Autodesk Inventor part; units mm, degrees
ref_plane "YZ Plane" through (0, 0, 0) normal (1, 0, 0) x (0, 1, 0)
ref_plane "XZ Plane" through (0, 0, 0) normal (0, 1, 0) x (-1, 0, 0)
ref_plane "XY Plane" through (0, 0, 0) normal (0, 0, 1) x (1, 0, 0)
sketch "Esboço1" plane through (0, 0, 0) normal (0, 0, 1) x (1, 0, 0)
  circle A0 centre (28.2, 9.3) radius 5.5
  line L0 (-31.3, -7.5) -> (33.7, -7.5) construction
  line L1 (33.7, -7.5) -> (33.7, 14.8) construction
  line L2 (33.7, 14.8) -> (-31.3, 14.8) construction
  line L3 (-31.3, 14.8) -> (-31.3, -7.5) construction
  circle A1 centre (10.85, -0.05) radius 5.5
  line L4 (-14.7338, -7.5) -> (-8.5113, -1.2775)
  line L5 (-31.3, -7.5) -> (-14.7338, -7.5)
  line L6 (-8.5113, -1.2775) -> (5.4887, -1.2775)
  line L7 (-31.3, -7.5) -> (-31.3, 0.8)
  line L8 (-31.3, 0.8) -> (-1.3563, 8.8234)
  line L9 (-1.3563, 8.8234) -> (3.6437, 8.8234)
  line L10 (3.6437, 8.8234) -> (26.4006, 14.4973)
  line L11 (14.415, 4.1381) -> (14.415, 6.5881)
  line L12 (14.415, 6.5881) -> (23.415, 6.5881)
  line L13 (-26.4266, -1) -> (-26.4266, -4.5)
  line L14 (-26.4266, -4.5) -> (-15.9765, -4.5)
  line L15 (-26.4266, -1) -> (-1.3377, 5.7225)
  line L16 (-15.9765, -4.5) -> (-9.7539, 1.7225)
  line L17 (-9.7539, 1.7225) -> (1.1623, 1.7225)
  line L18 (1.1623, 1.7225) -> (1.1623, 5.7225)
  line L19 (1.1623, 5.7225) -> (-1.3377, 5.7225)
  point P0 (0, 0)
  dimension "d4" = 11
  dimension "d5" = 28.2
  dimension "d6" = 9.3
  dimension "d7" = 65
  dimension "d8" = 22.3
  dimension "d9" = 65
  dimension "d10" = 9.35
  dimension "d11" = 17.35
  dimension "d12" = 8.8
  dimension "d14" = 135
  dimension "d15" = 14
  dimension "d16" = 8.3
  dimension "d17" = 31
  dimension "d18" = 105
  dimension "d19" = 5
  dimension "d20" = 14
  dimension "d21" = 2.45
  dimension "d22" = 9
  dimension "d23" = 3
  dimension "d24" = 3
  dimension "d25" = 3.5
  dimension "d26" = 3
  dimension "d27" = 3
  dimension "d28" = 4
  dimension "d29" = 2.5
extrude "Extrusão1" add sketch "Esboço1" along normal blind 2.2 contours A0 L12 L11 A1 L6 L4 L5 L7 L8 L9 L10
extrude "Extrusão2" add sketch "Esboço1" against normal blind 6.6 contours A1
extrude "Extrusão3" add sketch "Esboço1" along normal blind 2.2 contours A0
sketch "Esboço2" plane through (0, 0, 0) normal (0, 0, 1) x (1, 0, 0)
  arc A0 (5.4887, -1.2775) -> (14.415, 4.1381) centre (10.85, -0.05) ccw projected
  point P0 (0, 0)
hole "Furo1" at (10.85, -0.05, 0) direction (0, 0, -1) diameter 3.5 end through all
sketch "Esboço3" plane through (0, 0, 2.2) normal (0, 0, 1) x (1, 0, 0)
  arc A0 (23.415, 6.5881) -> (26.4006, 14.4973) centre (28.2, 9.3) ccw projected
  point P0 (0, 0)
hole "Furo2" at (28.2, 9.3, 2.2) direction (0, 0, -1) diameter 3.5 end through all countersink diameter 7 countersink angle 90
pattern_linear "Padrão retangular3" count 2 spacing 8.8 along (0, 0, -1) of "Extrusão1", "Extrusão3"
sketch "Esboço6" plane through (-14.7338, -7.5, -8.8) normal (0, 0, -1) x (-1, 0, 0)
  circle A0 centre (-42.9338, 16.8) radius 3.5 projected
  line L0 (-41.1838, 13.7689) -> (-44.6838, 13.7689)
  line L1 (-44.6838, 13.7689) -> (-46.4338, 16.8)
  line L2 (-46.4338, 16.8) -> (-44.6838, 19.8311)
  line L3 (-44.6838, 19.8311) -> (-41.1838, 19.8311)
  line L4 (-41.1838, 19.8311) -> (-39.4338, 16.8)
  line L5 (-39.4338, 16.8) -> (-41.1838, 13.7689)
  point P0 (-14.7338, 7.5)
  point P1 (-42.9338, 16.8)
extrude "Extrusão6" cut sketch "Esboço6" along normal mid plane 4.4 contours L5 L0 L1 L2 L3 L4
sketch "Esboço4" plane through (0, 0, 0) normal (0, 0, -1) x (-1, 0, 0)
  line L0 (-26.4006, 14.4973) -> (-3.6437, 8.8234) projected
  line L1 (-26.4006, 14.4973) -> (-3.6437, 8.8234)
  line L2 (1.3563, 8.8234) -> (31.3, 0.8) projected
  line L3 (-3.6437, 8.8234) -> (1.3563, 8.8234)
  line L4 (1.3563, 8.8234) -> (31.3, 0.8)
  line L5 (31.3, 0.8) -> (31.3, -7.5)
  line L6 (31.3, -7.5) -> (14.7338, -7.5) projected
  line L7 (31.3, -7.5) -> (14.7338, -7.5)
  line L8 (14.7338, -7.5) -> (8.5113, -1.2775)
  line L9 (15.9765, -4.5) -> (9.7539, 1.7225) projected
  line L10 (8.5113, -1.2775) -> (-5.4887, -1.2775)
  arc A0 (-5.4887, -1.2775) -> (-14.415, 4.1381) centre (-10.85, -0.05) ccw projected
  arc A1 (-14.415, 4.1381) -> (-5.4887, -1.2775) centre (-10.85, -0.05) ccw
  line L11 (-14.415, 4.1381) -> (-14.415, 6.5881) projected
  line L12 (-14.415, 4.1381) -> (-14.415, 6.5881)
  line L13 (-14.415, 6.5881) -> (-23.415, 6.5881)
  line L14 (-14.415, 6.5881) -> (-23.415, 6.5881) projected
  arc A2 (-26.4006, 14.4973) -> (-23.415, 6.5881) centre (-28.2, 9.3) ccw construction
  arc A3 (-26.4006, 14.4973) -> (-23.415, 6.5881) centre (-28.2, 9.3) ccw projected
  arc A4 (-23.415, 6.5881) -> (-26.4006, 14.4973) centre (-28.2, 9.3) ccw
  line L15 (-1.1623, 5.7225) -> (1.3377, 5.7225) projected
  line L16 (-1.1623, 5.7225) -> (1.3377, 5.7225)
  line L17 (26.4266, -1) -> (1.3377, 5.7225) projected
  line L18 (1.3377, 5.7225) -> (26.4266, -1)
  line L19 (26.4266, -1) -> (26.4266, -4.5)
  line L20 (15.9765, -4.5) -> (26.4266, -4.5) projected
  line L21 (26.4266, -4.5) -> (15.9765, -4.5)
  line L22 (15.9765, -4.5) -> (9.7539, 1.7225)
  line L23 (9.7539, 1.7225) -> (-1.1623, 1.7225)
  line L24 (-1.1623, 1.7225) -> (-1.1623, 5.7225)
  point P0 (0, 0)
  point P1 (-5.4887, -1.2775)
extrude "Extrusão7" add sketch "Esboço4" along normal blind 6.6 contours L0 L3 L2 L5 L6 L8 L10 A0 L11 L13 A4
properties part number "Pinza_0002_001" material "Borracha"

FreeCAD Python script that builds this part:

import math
import FreeCAD as App
import Part
import Sketcher
from FreeCAD import Vector
Q = App.Units.Quantity


def add_polygon(sketch, points):
    """Adds a closed chain of lines whose ends are joined by coincident constraints."""
    first, n = sketch.GeometryCount, len(points)
    for a, b in zip(points, points[1:] + points[:1]):
        sketch.addGeometry(Part.LineSegment(App.Vector(*a, 0), App.Vector(*b, 0)), False)
    for i in range(n):
        sketch.addConstraint(Sketcher.Constraint("Coincident", first + i, 2, first + (i + 1) % n, 1))

doc = App.newDocument("Part")
body = doc.addObject("PartDesign::Body", "Body")
body.AllowCompound = True

# Sketch on XY plane
sketch1 = doc.addObject("Sketcher::SketchObject", "Sketch")
body.addObject(sketch1)
sketch1.AttachmentSupport = (doc.XY_Plane, [""])
sketch1.MapMode = "FlatFace"
sketch1.addGeometry(Part.ArcOfCircle(Part.Circle(Vector(28.2, 9.3, 0), Vector(0, 0, 1), 5.5), math.radians(109), math.radians(210)), False)  # 0
sketch1.addGeometry(Part.LineSegment(Vector(26.4, 14.5, 0), Vector(3.6, 8.8, 0)), False)  # 1
sketch1.addGeometry(Part.LineSegment(Vector(3.6, 8.8, 0), Vector(-1.4, 8.8, 0)), False)  # 2
sketch1.addGeometry(Part.LineSegment(Vector(-1.4, 8.8, 0), Vector(-31.3, 0.8, 0)), False)  # 3
sketch1.addGeometry(Part.LineSegment(Vector(-31.3, 0.8, 0), Vector(-31.3, -7.5, 0)), False)  # 4
sketch1.addGeometry(Part.LineSegment(Vector(-31.3, -7.5, 0), Vector(-14.7, -7.5, 0)), False)  # 5
sketch1.addGeometry(Part.LineSegment(Vector(-14.7, -7.5, 0), Vector(-8.5, -1.3, 0)), False)  # 6
sketch1.addGeometry(Part.LineSegment(Vector(-8.5, -1.3, 0), Vector(5.5, -1.3, 0)), False)  # 7
sketch1.addGeometry(Part.ArcOfCircle(Part.Circle(Vector(10.8, -0.1, 0), Vector(0, 0, 1), 5.5), math.radians(50), math.radians(193)), False)  # 8
sketch1.addGeometry(Part.LineSegment(Vector(14.4, 4.1, 0), Vector(14.4, 6.6, 0)), False)  # 9
sketch1.addGeometry(Part.LineSegment(Vector(14.4, 6.6, 0), Vector(23.4, 6.6, 0)), False)  # 10
add_polygon(sketch1, [(-26.4, -4.5), (-26.4, -1), (-1.3, 5.7), (1.2, 5.7), (1.2, 1.7), (-9.8, 1.7), (-16, -4.5)])  # lines 11-17
sketch1.addConstraint([
    Sketcher.Constraint("Coincident", 0, 1, 1, 1),
    Sketcher.Constraint("Coincident", 1, 2, 2, 1),
    Sketcher.Constraint("Coincident", 2, 2, 3, 1),
    Sketcher.Constraint("Coincident", 3, 2, 4, 1),
    Sketcher.Constraint("Coincident", 4, 2, 5, 1),
    Sketcher.Constraint("Coincident", 5, 2, 6, 1),
    Sketcher.Constraint("Coincident", 6, 2, 7, 1),
    Sketcher.Constraint("Coincident", 7, 2, 8, 2),
    Sketcher.Constraint("Coincident", 8, 1, 9, 1),
    Sketcher.Constraint("Coincident", 9, 2, 10, 1),
    Sketcher.Constraint("Coincident", 10, 2, 0, 2),
    Sketcher.Constraint("Horizontal", 2),
    Sketcher.Constraint("Vertical", 4),
    Sketcher.Constraint("Horizontal", 5),
    Sketcher.Constraint("Horizontal", 7),
    Sketcher.Constraint("Vertical", 9),
    Sketcher.Constraint("Horizontal", 10),
    Sketcher.Constraint("Vertical", 11),
    Sketcher.Constraint("Horizontal", 13),
    Sketcher.Constraint("Vertical", 14),
    Sketcher.Constraint("Horizontal", 15),
    Sketcher.Constraint("Horizontal", 17),
    Sketcher.Constraint("Equal", 0, 8),
    Sketcher.Constraint("Parallel", 3, 12),
    Sketcher.Constraint("Parallel", 6, 16),
    Sketcher.Constraint("Equal", 6, 16),
    Sketcher.Constraint("Radius", 0, Q("5.5 mm")),
    Sketcher.Constraint("DistanceX", 2, 2, 2, 1, Q("5 mm")),
    Sketcher.Constraint("DistanceX", 7, 1, 7, 2, Q("14 mm")),
    Sketcher.Constraint("DistanceX", 10, 1, 10, 2, Q("9 mm")),
    Sketcher.Constraint("DistanceY", 14, 2, 14, 1, Q("4 mm")),
    Sketcher.Constraint("Angle", 16, Q("-135.0005 deg")),
    Sketcher.Constraint("Distance", 3, Q("31 mm")),
    Sketcher.Constraint("DistanceX", 13, 1, 13, 2, Q("2.5 mm")),
    Sketcher.Constraint("DistanceY", 4, 2, 4, 1, Q("8.3 mm")),
    Sketcher.Constraint("DistanceY", 11, 1, 11, 2, Q("3.5 mm")),
    Sketcher.Constraint("DistanceY", 7, 2, 14, 2, Q("3 mm")),
    Sketcher.Constraint("Distance", 6, Q("8.8 mm")),
    Sketcher.Constraint("DistanceY", 9, 1, 9, 2, Q("2.45 mm")),
    Sketcher.Constraint("DistanceX", -1, 1, 0, 3, Q("28.2 mm")),
    Sketcher.Constraint("DistanceY", -1, 1, 0, 3, Q("9.3 mm")),
    Sketcher.Constraint("Angle", 1, Q("-166 deg")),
    Sketcher.Constraint("Angle", 3, Q("-165 deg")),
    Sketcher.Constraint("DistanceX", 8, 3, 0, 3, Q("17.35 mm")),
    Sketcher.Constraint("DistanceY", 8, 3, 0, 3, Q("9.35 mm")),
    Sketcher.Constraint("DistanceY", 11, 2, -1, 1, Q("1 mm")),
    Sketcher.Constraint("DistanceX", 17, 2, 17, 1, Q("10.45 mm")),
    Sketcher.Constraint("DistanceX", 3, 2, -1, 1, Q("31.3 mm")),
    Sketcher.Constraint("DistanceX", 5, 2, 15, 2, Q("4.98 mm")),
])
pad1 = doc.addObject("PartDesign::Pad", "Pad")
body.addObject(pad1)
pad1.Profile = sketch1
pad1.Length = 2.2

# Sketch on XY plane
sketch2 = doc.addObject("Sketcher::SketchObject", "Sketch001")
body.addObject(sketch2)
sketch2.AttachmentSupport = (doc.XY_Plane, [""])
sketch2.MapMode = "FlatFace"
sketch2.addGeometry(Part.Circle(Vector(11, 0, 0), Vector(0, 0, 1), 6), False)
sketch2.addConstraint([
    Sketcher.Constraint("Diameter", 0, Q("11 mm")),
    Sketcher.Constraint("DistanceX", -1, 1, 0, 3, Q("10.85 mm")),
    Sketcher.Constraint("DistanceY", 0, 3, -1, 1, Q("0.05 mm")),
])
pad2 = doc.addObject("PartDesign::Pad", "Pad001")
body.addObject(pad2)
pad2.Profile = sketch2
pad2.Length = 6.6
pad2.Reversed = True

# Sketch on XY plane
sketch3 = doc.addObject("Sketcher::SketchObject", "Sketch002")
body.addObject(sketch3)
sketch3.AttachmentSupport = (doc.XY_Plane, [""])
sketch3.MapMode = "FlatFace"
sketch3.addGeometry(Part.Circle(Vector(28, 9, 0), Vector(0, 0, 1), 6), False)
sketch3.addConstraint([
    Sketcher.Constraint("Diameter", 0, Q("11 mm")),
    Sketcher.Constraint("DistanceX", -1, 1, 0, 3, Q("28.2 mm")),
    Sketcher.Constraint("DistanceY", -1, 1, 0, 3, Q("9.3 mm")),
])
pad3 = doc.addObject("PartDesign::Pad", "Pad002")
body.addObject(pad3)
pad3.Profile = sketch3
pad3.Length = 2.2

# Sketch on XY plane
sketch4 = doc.addObject("Sketcher::SketchObject", "Sketch003")
body.addObject(sketch4)
sketch4.AttachmentSupport = (doc.XY_Plane, [""])
sketch4.MapMode = "FlatFace"
sketch4.addGeometry(Part.Circle(Vector(10.8, -0.1, 0), Vector(0, 0, 1), 1.8), False)
sketch4.addConstraint([
    Sketcher.Constraint("Diameter", 0, Q("3.5 mm")),
    Sketcher.Constraint("DistanceX", -1, 1, 0, 3, Q("10.85 mm")),
    Sketcher.Constraint("DistanceY", 0, 3, -1, 1, Q("0.05 mm")),
])
doc.recompute()
hole = doc.addObject("PartDesign::Hole", "Hole")
body.addObject(hole)
hole.Profile = sketch4
hole.ThreadType = "None"
hole.Diameter = 3.5
hole.DepthType = "ThroughAll"

# Sketch on XY plane
sketch5 = doc.addObject("Sketcher::SketchObject", "Sketch004")
body.addObject(sketch5)
sketch5.AttachmentSupport = (doc.XY_Plane, [""])
sketch5.MapMode = "FlatFace"
sketch5.AttachmentOffset = App.Placement(Vector(0, 0, 2.2), App.Rotation())
sketch5.addGeometry(Part.Circle(Vector(28.2, 9.3, 0), Vector(0, 0, 1), 1.8), False)
sketch5.addConstraint([
    Sketcher.Constraint("Diameter", 0, Q("3.5 mm")),
    Sketcher.Constraint("DistanceX", -1, 1, 0, 3, Q("28.2 mm")),
    Sketcher.Constraint("DistanceY", -1, 1, 0, 3, Q("9.3 mm")),
])
doc.recompute()
hole2 = doc.addObject("PartDesign::Hole", "Hole001")
body.addObject(hole2)
hole2.Profile = sketch5
hole2.ThreadType = "None"
hole2.Diameter = 3.5
hole2.DepthType = "ThroughAll"
hole2.HoleCutType = "Countersink"
hole2.HoleCutDiameter = 7
hole2.HoleCutCountersinkAngle = 90
doc.recompute()

linearpattern = doc.addObject("PartDesign::LinearPattern", "LinearPattern")
body.addObject(linearpattern)
linearpattern.Originals = [pad1, pad3]
linearpattern.Direction = (doc.Z_Axis, [""])
linearpattern.Mode = "offset"
linearpattern.Offset = 8.8
linearpattern.Occurrences = 2
linearpattern.Reversed = True
body.Tip = linearpattern

# Sketch on XY plane
sketch6 = doc.addObject("Sketcher::SketchObject", "Sketch005")
body.addObject(sketch6)
sketch6.AttachmentSupport = (doc.XY_Plane, [""])
sketch6.MapMode = "FlatFace"
sketch6.AttachmentOffset = App.Placement(Vector(0, 0, -8.8), App.Rotation())
add_polygon(sketch6, [(26.4, 6.3), (24.7, 9.3), (26.4, 12.3), (29.9, 12.3), (31.7, 9.3), (29.9, 6.3)])  # lines 0-5
sketch6.addConstraint([
    Sketcher.Constraint("Horizontal", 2),
    Sketcher.Constraint("Horizontal", 5),
    Sketcher.Constraint("Parallel", 0, 3),
    Sketcher.Constraint("Parallel", 1, 4),
    Sketcher.Constraint("Horizontal", 0, 2, 3, 2),
    Sketcher.Constraint("Vertical", 2, 2, 4, 2),
    Sketcher.Constraint("Vertical", 1, 2, 5, 2),
    Sketcher.Constraint("Angle", 0, Q("120 deg")),
    Sketcher.Constraint("DistanceX", 2, 1, 2, 2, Q("3.5 mm")),
    Sketcher.Constraint("DistanceX", 0, 2, 3, 2, Q("7 mm")),
    Sketcher.Constraint("DistanceX", -1, 1, 0, 2, Q("24.7 mm")),
    Sketcher.Constraint("DistanceY", -1, 1, 0, 2, Q("9.3 mm")),
])
pocket1 = doc.addObject("PartDesign::Pocket", "Pocket")
body.addObject(pocket1)
pocket1.Profile = sketch6
pocket1.Length = 4.4
pocket1.Midplane = True

# Sketch on XY plane
sketch7 = doc.addObject("Sketcher::SketchObject", "Sketch006")
body.addObject(sketch7)
sketch7.AttachmentSupport = (doc.XY_Plane, [""])
sketch7.MapMode = "FlatFace"
sketch7.addGeometry(Part.LineSegment(Vector(3.6, 8.8, 0), Vector(26.4, 14.5, 0)), False)  # 0
sketch7.addGeometry(Part.ArcOfCircle(Part.Circle(Vector(28.2, 9.3, 0), Vector(0, 0, 1), 5.5), math.radians(109), math.radians(210)), False)  # 1
sketch7.addGeometry(Part.LineSegment(Vector(23.4, 6.6, 0), Vector(14.4, 6.6, 0)), False)  # 2
sketch7.addGeometry(Part.LineSegment(Vector(14.4, 6.6, 0), Vector(14.4, 4.1, 0)), False)  # 3
sketch7.addGeometry(Part.ArcOfCircle(Part.Circle(Vector(10.8, -0.1, 0), Vector(0, 0, 1), 5.5), math.radians(50), math.radians(193)), False)  # 4
sketch7.addGeometry(Part.LineSegment(Vector(5.5, -1.3, 0), Vector(-8.5, -1.3, 0)), False)  # 5
sketch7.addGeometry(Part.LineSegment(Vector(-8.5, -1.3, 0), Vector(-14.7, -7.5, 0)), False)  # 6
sketch7.addGeometry(Part.LineSegment(Vector(-14.7, -7.5, 0), Vector(-31.3, -7.5, 0)), False)  # 7
sketch7.addGeometry(Part.LineSegment(Vector(-31.3, -7.5, 0), Vector(-31.3, 0.8, 0)), False)  # 8
sketch7.addGeometry(Part.LineSegment(Vector(-31.3, 0.8, 0), Vector(-1.4, 8.8, 0)), False)  # 9
sketch7.addGeometry(Part.LineSegment(Vector(-1.4, 8.8, 0), Vector(3.6, 8.8, 0)), False)  # 10
add_polygon(sketch7, [(-26.4, -4.5), (-16, -4.5), (-9.8, 1.7), (1.2, 1.7), (1.2, 5.7), (-1.3, 5.7), (-26.4, -1)])  # lines 11-17
sketch7.addConstraint([
    Sketcher.Constraint("Coincident", 0, 2, 1, 1),
    Sketcher.Constraint("Coincident", 1, 2, 2, 1),
    Sketcher.Constraint("Coincident", 2, 2, 3, 1),
    Sketcher.Constraint("Coincident", 3, 2, 4, 1),
    Sketcher.Constraint("Coincident", 4, 2, 5, 1),
    Sketcher.Constraint("Coincident", 5, 2, 6, 1),
    Sketcher.Constraint("Coincident", 6, 2, 7, 1),
    Sketcher.Constraint("Coincident", 7, 2, 8, 1),
    Sketcher.Constraint("Coincident", 8, 2, 9, 1),
    Sketcher.Constraint("Coincident", 9, 2, 10, 1),
    Sketcher.Constraint("Coincident", 10, 2, 0, 1),
    Sketcher.Constraint("Horizontal", 2),
    Sketcher.Constraint("Vertical", 3),
    Sketcher.Constraint("Horizontal", 5),
    Sketcher.Constraint("Horizontal", 7),
    Sketcher.Constraint("Vertical", 8),
    Sketcher.Constraint("Horizontal", 10),
    Sketcher.Constraint("Horizontal", 11),
    Sketcher.Constraint("Horizontal", 13),
    Sketcher.Constraint("Vertical", 14),
    Sketcher.Constraint("Horizontal", 15),
    Sketcher.Constraint("Vertical", 17),
    Sketcher.Constraint("Equal", 1, 4),
    Sketcher.Constraint("Parallel", 6, 12),
    Sketcher.Constraint("Parallel", 9, 16),
    Sketcher.Constraint("Equal", 6, 12),
    Sketcher.Constraint("Radius", 1, Q("5.5 mm")),
    Sketcher.Constraint("DistanceX", 2, 2, 2, 1, Q("9 mm")),
    Sketcher.Constraint("DistanceX", 5, 2, 5, 1, Q("14 mm")),
    Sketcher.Constraint("DistanceX", 10, 1, 10, 2, Q("5 mm")),
    Sketcher.Constraint("DistanceY", 14, 1, 14, 2, Q("4 mm")),
    Sketcher.Constraint("Angle", 0, Q("14 deg")),
    Sketcher.Constraint("Angle", 6, Q("-135 deg")),
    Sketcher.Constraint("Angle", 9, Q("15 deg")),
    Sketcher.Constraint("Distance", 9, Q("31 mm")),
    Sketcher.Constraint("DistanceX", 15, 2, 15, 1, Q("2.5 mm")),
    Sketcher.Constraint("DistanceY", 8, 1, 8, 2, Q("8.3 mm")),
    Sketcher.Constraint("DistanceY", 17, 2, 17, 1, Q("3.5 mm")),
    Sketcher.Constraint("DistanceY", 16, 2, -1, 1, Q("1 mm")),
    Sketcher.Constraint("DistanceY", 6, 2, 11, 2, Q("3 mm")),
    Sketcher.Constraint("Distance", 6, Q("8.8 mm")),
    Sketcher.Constraint("DistanceX", 11, 1, 11, 2, Q("10.45 mm")),
    Sketcher.Constraint("DistanceY", 3, 2, 3, 1, Q("2.45 mm")),
    Sketcher.Constraint("DistanceX", -1, 1, 1, 3, Q("28.2 mm")),
    Sketcher.Constraint("DistanceY", -1, 1, 1, 3, Q("9.3 mm")),
    Sketcher.Constraint("DistanceX", 7, 2, -1, 1, Q("31.3 mm")),
    Sketcher.Constraint("DistanceX", -1, 1, 4, 3, Q("10.85 mm")),
    Sketcher.Constraint("DistanceY", 4, 3, -1, 1, Q("0.05 mm")),
    Sketcher.Constraint("DistanceX", 6, 2, 12, 2, Q("4.98 mm")),
])
pad4 = doc.addObject("PartDesign::Pad", "Pad003")
body.addObject(pad4)
pad4.Profile = sketch7
pad4.Length = 6.6
pad4.Reversed = True

doc.recompute()
